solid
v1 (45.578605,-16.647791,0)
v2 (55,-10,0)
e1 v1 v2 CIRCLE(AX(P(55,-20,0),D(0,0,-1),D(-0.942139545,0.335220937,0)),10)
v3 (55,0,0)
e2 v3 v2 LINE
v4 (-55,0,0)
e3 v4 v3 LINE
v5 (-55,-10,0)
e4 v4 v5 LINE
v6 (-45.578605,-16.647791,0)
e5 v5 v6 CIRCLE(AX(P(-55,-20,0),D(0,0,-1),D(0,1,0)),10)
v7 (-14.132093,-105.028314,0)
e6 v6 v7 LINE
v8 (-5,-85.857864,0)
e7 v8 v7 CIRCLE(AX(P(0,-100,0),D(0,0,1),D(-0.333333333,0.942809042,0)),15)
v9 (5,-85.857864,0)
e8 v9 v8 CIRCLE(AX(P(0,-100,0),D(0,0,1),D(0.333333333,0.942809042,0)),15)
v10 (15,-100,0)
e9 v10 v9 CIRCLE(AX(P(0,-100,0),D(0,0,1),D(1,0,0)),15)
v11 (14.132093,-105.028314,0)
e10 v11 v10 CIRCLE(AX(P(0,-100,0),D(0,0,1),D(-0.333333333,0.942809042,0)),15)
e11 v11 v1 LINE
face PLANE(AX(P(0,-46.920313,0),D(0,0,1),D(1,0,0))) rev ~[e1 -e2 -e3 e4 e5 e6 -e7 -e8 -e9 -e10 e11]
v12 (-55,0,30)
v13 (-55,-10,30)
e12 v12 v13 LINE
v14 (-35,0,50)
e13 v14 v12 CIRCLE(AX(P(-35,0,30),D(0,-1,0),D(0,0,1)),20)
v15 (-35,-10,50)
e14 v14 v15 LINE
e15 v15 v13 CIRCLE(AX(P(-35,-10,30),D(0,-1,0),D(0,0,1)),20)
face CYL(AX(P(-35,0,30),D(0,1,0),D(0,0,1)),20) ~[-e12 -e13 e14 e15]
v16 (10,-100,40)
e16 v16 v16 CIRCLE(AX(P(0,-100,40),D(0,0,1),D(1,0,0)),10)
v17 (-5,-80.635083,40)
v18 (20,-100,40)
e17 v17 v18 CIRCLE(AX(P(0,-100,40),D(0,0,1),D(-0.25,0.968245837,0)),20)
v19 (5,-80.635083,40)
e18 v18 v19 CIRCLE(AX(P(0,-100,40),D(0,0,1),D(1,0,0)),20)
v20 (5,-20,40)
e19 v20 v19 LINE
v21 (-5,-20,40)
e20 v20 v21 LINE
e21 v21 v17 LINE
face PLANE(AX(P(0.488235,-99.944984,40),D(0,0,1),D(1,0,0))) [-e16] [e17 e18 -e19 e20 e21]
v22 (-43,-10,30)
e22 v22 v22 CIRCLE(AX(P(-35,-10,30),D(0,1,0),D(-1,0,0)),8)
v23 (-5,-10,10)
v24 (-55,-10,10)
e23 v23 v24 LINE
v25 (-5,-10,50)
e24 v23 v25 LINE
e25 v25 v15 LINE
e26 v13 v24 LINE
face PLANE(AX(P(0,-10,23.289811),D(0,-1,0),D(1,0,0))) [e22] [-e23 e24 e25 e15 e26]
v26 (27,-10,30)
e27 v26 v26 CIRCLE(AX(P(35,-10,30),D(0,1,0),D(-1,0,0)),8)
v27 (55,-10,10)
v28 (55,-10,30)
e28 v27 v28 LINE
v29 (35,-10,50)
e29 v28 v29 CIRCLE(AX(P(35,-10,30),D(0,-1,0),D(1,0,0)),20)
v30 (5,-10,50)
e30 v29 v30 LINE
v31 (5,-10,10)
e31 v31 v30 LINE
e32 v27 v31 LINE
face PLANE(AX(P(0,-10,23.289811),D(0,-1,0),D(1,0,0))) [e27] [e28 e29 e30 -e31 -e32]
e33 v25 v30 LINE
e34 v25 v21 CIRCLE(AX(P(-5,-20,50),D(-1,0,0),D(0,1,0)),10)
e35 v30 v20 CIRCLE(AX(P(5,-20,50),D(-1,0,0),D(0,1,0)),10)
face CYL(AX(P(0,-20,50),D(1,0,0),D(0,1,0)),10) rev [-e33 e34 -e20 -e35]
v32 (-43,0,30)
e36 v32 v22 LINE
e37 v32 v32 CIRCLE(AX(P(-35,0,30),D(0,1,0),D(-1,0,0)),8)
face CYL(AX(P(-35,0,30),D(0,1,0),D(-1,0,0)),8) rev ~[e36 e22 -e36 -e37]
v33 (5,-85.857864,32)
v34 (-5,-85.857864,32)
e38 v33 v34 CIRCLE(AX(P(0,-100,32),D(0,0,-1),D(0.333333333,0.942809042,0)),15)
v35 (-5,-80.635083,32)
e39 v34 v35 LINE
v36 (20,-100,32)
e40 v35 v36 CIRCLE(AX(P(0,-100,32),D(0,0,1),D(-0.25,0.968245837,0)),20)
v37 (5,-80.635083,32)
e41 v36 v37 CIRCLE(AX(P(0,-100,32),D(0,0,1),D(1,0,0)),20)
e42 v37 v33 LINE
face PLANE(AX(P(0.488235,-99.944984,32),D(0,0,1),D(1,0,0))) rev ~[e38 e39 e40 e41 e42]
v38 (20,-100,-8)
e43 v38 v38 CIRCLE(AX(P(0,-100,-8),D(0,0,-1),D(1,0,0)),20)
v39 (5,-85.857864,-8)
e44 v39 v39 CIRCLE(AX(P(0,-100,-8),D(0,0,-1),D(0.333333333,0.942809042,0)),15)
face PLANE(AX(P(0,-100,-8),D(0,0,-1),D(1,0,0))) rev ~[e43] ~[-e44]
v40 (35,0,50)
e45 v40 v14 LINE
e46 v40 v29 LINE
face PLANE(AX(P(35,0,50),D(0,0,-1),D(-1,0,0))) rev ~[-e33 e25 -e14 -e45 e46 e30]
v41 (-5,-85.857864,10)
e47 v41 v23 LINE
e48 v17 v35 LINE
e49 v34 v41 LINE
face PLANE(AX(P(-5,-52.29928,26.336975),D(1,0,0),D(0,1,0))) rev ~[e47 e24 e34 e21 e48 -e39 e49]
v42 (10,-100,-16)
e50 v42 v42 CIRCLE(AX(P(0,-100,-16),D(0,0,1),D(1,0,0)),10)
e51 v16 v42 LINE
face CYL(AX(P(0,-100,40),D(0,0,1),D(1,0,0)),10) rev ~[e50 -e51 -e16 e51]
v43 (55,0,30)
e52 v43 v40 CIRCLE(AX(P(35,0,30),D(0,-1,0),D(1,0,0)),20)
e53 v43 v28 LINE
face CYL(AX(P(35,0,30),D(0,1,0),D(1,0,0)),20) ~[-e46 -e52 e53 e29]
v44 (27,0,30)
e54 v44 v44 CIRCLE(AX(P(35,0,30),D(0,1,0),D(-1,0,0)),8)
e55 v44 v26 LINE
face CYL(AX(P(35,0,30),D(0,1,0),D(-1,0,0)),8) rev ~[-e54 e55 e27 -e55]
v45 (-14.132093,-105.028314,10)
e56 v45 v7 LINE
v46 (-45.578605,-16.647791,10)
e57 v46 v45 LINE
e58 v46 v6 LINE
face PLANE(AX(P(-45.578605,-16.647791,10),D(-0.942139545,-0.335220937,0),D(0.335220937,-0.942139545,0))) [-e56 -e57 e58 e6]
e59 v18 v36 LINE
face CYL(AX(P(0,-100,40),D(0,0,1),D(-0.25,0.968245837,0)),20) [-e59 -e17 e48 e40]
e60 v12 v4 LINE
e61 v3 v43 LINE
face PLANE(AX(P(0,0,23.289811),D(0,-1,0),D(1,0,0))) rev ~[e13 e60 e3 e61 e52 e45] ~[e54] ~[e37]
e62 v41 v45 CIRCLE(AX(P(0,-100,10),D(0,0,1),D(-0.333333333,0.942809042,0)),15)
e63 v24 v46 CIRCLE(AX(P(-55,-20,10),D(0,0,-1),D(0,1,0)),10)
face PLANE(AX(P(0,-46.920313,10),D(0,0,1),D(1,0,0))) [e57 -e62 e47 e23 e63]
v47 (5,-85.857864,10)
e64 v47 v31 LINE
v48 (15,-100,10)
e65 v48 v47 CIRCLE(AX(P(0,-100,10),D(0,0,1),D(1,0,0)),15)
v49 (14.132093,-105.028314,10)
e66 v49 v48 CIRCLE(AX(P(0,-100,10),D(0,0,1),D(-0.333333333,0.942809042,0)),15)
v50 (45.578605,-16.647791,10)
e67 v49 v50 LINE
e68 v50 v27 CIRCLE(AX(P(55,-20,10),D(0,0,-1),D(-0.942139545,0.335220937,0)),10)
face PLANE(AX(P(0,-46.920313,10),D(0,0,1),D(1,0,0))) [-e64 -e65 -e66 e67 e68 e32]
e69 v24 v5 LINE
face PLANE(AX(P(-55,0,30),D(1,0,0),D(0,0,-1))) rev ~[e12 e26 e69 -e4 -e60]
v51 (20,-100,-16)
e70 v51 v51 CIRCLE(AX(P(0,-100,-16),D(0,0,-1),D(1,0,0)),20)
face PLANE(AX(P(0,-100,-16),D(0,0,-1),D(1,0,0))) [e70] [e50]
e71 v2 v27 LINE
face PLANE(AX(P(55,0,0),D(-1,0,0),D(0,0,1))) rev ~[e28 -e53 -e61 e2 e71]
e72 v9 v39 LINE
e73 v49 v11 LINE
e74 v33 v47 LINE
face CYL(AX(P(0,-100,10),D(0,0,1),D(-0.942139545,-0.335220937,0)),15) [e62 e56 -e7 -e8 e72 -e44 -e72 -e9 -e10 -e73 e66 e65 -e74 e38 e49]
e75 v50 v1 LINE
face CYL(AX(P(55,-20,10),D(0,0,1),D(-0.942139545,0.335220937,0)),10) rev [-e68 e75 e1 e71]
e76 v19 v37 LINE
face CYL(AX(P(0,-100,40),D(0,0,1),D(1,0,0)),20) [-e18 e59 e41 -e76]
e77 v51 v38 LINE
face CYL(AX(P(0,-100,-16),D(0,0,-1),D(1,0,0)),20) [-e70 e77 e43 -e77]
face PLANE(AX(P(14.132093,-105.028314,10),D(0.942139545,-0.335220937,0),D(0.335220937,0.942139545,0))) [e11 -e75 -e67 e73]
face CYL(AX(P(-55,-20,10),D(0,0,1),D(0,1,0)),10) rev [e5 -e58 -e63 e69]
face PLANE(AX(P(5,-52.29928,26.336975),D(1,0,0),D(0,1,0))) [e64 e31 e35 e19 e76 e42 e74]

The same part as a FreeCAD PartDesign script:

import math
import FreeCAD as App
import Part
import Sketcher

doc = App.newDocument("Part")
body = doc.addObject("PartDesign::Body", "Body")

sketch1 = body.newObject("Sketcher::SketchObject", "Sketch")
sketch1.AttachmentSupport = (doc.getObject("XZ_Plane"), [""])
sketch1.MapMode = "FlatFace"
sketch1.addGeometry([
    Part.LineSegment(App.Vector(-55, 30, 0), App.Vector(-55, 0, 0)),
    Part.LineSegment(App.Vector(-55, 0, 0), App.Vector(55, 0, 0)),
    Part.LineSegment(App.Vector(55, 0, 0), App.Vector(55, 30, 0)),
    Part.ArcOfCircle(Part.Circle(App.Vector(35, 30, 0), App.Vector(0, 0, 1), 20), math.radians(0), math.radians(90)),
    Part.LineSegment(App.Vector(35, 50, 0), App.Vector(-35, 50, 0)),
    Part.ArcOfCircle(Part.Circle(App.Vector(-35, 30, 0), App.Vector(0, 0, 1), 20), math.radians(90), math.radians(180)),
], False)
sketch1.addConstraint([
    Sketcher.Constraint("Coincident", 0, 2, 1, 1),
    Sketcher.Constraint("Coincident", 1, 2, 2, 1),
    Sketcher.Constraint("Tangent", 2, 2, 3, 1),
    Sketcher.Constraint("Tangent", 3, 2, 4, 1),
    Sketcher.Constraint("Tangent", 4, 2, 5, 1),
    Sketcher.Constraint("Tangent", 5, 2, 0, 1),
    Sketcher.Constraint("Vertical", 0),
    Sketcher.Constraint("Horizontal", 1),
    Sketcher.Constraint("Vertical", 2),
    Sketcher.Constraint("Horizontal", 4),
    Sketcher.Constraint("Equal", 3, 5),
    Sketcher.Constraint("Symmetric", 0, 2, 1, 2, -1, 1),
    Sketcher.Constraint("Radius", 3, 20.0),
    Sketcher.Constraint("DistanceX", 1, 1, 1, 2, 110.0),
    Sketcher.Constraint("DistanceY", 0, 2, 0, 1, 30.0),
])
pad1 = body.newObject("PartDesign::Pad", "Pad")
pad1.Profile = sketch1
pad1.Length = 10

sketch2 = body.newObject("Sketcher::SketchObject", "Sketch001")
sketch2.AttachmentSupport = (doc.getObject("XY_Plane"), [""])
sketch2.MapMode = "FlatFace"
sketch2.AttachmentOffset = App.Placement(App.Vector(0, 0, 10), App.Rotation())
sketch2.addGeometry([
    Part.ArcOfCircle(Part.Circle(App.Vector(0, -100, 0), App.Vector(0, 0, 1), 15), math.radians(-160), math.radians(-20)),
    Part.LineSegment(App.Vector(14, -105, 0), App.Vector(46, -17, 0)),
    Part.ArcOfCircle(Part.Circle(App.Vector(55, -20, 0), App.Vector(0, 0, 1), 10), math.radians(90), math.radians(160)),
    Part.LineSegment(App.Vector(55, -10, 0), App.Vector(-55, -10, 0)),
    Part.ArcOfCircle(Part.Circle(App.Vector(-55, -20, 0), App.Vector(0, 0, 1), 10), math.radians(20), math.radians(90)),
    Part.LineSegment(App.Vector(-46, -17, 0), App.Vector(-14, -105, 0)),
], False)
sketch2.addConstraint([
    Sketcher.Constraint("Tangent", 0, 2, 1, 1),
    Sketcher.Constraint("Tangent", 1, 2, 2, 2),
    Sketcher.Constraint("Tangent", 2, 1, 3, 1),
    Sketcher.Constraint("Tangent", 3, 2, 4, 2),
    Sketcher.Constraint("Tangent", 4, 1, 5, 1),
    Sketcher.Constraint("Tangent", 5, 2, 0, 1),
    Sketcher.Constraint("Horizontal", 3),
    Sketcher.Constraint("Equal", 2, 4),
    Sketcher.Constraint("Symmetric", 1, 2, 4, 1, -2),
    Sketcher.Constraint("Radius", 0, 15.0),
    Sketcher.Constraint("Radius", 2, 10.0),
    Sketcher.Constraint("DistanceX", 3, 2, 3, 1, 110.0),
    Sketcher.Constraint("DistanceY", 0, 3, -1, 1, 100.0),
    Sketcher.Constraint("DistanceY", 2, 3, -1, 1, 20.0),
])
pad2 = body.newObject("PartDesign::Pad", "Pad001")
pad2.Profile = sketch2
pad2.Length = 10
pad2.Reversed = True

sketch3 = body.newObject("Sketcher::SketchObject", "Sketch002")
sketch3.AttachmentSupport = (doc.getObject("YZ_Plane"), [""])
sketch3.MapMode = "FlatFace"
sketch3.addGeometry([
    Part.LineSegment(App.Vector(-100, 10, 0), App.Vector(-10, 10, 0)),
    Part.LineSegment(App.Vector(-10, 10, 0), App.Vector(-10, 50, 0)),
    Part.ArcOfCircle(Part.Circle(App.Vector(-20, 50, 0), App.Vector(0, 0, 1), 10), math.radians(-90), math.radians(0)),
    Part.LineSegment(App.Vector(-20, 40, 0), App.Vector(-100, 40, 0)),
    Part.LineSegment(App.Vector(-100, 40, 0), App.Vector(-100, 10, 0)),
], False)
sketch3.addConstraint([
    Sketcher.Constraint("Coincident", 0, 2, 1, 1),
    Sketcher.Constraint("Tangent", 1, 2, 2, 2),
    Sketcher.Constraint("Tangent", 2, 1, 3, 1),
    Sketcher.Constraint("Coincident", 3, 2, 4, 1),
    Sketcher.Constraint("Coincident", 4, 2, 0, 1),
    Sketcher.Constraint("Horizontal", 0),
    Sketcher.Constraint("Vertical", 1),
    Sketcher.Constraint("Horizontal", 3),
    Sketcher.Constraint("Vertical", 4),
    Sketcher.Constraint("Radius", 2, 10.0),
    Sketcher.Constraint("DistanceX", 0, 1, 0, 2, 90.0),
    Sketcher.Constraint("DistanceY", 1, 1, 1, 2, 40.0),
    Sketcher.Constraint("DistanceX", 2, 3, -1, 1, 20.0),
    Sketcher.Constraint("DistanceY", -1, 1, 2, 3, 50.0),
])
pad3 = body.newObject("PartDesign::Pad", "Pad002")
pad3.Profile = sketch3
pad3.Length = 10
pad3.Midplane = True

sketch4 = body.newObject("Sketcher::SketchObject", "Sketch003")
sketch4.AttachmentSupport = (doc.getObject("XY_Plane"), [""])
sketch4.MapMode = "FlatFace"
sketch4.AttachmentOffset = App.Placement(App.Vector(0, 0, 40), App.Rotation())
sketch4.addGeometry([
    Part.ArcOfCircle(Part.Circle(App.Vector(0, -100, 0), App.Vector(0, 0, 1), 15), math.radians(71), math.radians(109)),
    Part.ArcOfCircle(Part.Circle(App.Vector(0, -100, 0), App.Vector(0, 0, 1), 15), math.radians(109), math.radians(360)),
    Part.ArcOfCircle(Part.Circle(App.Vector(0, -100, 0), App.Vector(0, 0, 1), 15), math.radians(0), math.radians(71)),
], False)
sketch4.addConstraint([
    Sketcher.Constraint("Tangent", 0, 2, 1, 1),
    Sketcher.Constraint("Tangent", 1, 2, 2, 1),
    Sketcher.Constraint("Tangent", 2, 2, 0, 1),
    Sketcher.Constraint("Symmetric", 0, 2, 2, 2, -2),
    Sketcher.Constraint("Horizontal", 2, 3, 1, 2),
    Sketcher.Constraint("Radius", 0, 15.0),
    Sketcher.Constraint("DistanceY", 0, 3, -1, 1, 100.0),
    Sketcher.Constraint("DistanceX", 0, 2, -1, 1, 5.0),
])
pad4 = body.newObject("PartDesign::Pad", "Pad003")
pad4.Profile = sketch4
pad4.Length = 56
pad4.Reversed = True

sketch5 = body.newObject("Sketcher::SketchObject", "Sketch004")
sketch5.AttachmentSupport = (doc.getObject("XY_Plane"), [""])
sketch5.MapMode = "FlatFace"
sketch5.AttachmentOffset = App.Placement(App.Vector(0, 0, 40), App.Rotation())
sketch5.addGeometry([
    Part.ArcOfCircle(Part.Circle(App.Vector(0, -100, 0), App.Vector(0, 0, 1), 20), math.radians(104), math.radians(360)),
    Part.ArcOfCircle(Part.Circle(App.Vector(0, -100, 0), App.Vector(0, 0, 1), 20), math.radians(0), math.radians(76)),
    Part.LineSegment(App.Vector(5, -81, 0), App.Vector(5, -86, 0)),
    Part.ArcOfCircle(Part.Circle(App.Vector(0, -100, 0), App.Vector(0, 0, 1), 15), math.radians(109), math.radians(431)),
    Part.LineSegment(App.Vector(-5, -86, 0), App.Vector(-5, -81, 0)),
], False)
sketch5.addConstraint([
    Sketcher.Constraint("Tangent", 0, 2, 1, 1),
    Sketcher.Constraint("Coincident", 1, 2, 2, 1),
    Sketcher.Constraint("Coincident", 2, 2, 3, 2),
    Sketcher.Constraint("Coincident", 3, 1, 4, 1),
    Sketcher.Constraint("Coincident", 4, 2, 0, 1),
    Sketcher.Constraint("Vertical", 2),
    Sketcher.Constraint("Vertical", 4),
    Sketcher.Constraint("Coincident", 3, 3, 0, 3),
    Sketcher.Constraint("Equal", 0, 1),
    Sketcher.Constraint("Symmetric", 2, 2, 3, 1, -2),
    Sketcher.Constraint("Horizontal", 3, 3, 0, 2),
    Sketcher.Constraint("Radius", 0, 20.0),
    Sketcher.Constraint("Radius", 3, 15.0),
    Sketcher.Constraint("DistanceY", 0, 3, -1, 1, 100.0),
    Sketcher.Constraint("DistanceX", -1, 1, 1, 2, 5.0),
])
pad5 = body.newObject("PartDesign::Pad", "Pad004")
pad5.Profile = sketch5
pad5.Length = 8
pad5.Reversed = True

sketch6 = body.newObject("Sketcher::SketchObject", "Sketch005")
sketch6.AttachmentSupport = (doc.getObject("XY_Plane"), [""])
sketch6.MapMode = "FlatFace"
sketch6.AttachmentOffset = App.Placement(App.Vector(0, 0, -16), App.Rotation())
sketch6.addGeometry([
    Part.Circle(App.Vector(0, -100, 0), App.Vector(0, 0, 1), 20),
    Part.Circle(App.Vector(0, -100, 0), App.Vector(0, 0, 1), 15),
], False)
sketch6.addConstraint([
    Sketcher.Constraint("Coincident", 1, 3, 0, 3),
    Sketcher.Constraint("PointOnObject", 0, 3, -2),
    Sketcher.Constraint("Diameter", 0, 40.0),
    Sketcher.Constraint("Diameter", 1, 30.0),
    Sketcher.Constraint("DistanceY", 0, 3, -1, 1, 100.0),
])
pad6 = body.newObject("PartDesign::Pad", "Pad005")
pad6.Profile = sketch6
pad6.Length = 8

sketch7 = body.newObject("Sketcher::SketchObject", "Sketch006")
sketch7.AttachmentSupport = (doc.getObject("XY_Plane"), [""])
sketch7.MapMode = "FlatFace"
sketch7.AttachmentOffset = App.Placement(App.Vector(0, 0, 40), App.Rotation())
sketch7.addGeometry(Part.Circle(App.Vector(0, -100, 0), App.Vector(0, 0, 1), 10), False)
sketch7.addConstraint([
    Sketcher.Constraint("PointOnObject", 0, 3, -2),
    Sketcher.Constraint("Diameter", 0, 20.0),
    Sketcher.Constraint("DistanceY", 0, 3, -1, 1, 100.0),
])
pocket1 = body.newObject("PartDesign::Pocket", "Pocket")
pocket1.Profile = sketch7
pocket1.Type = "ThroughAll"

sketch8 = body.newObject("Sketcher::SketchObject", "Sketch007")
sketch8.AttachmentSupport = (doc.getObject("XZ_Plane"), [""])
sketch8.MapMode = "FlatFace"
sketch8.addGeometry([
    Part.Circle(App.Vector(35, 30, 0), App.Vector(0, 0, 1), 8),
    Part.Circle(App.Vector(-35, 30, 0), App.Vector(0, 0, 1), 8),
], False)
sketch8.addConstraint([
    Sketcher.Constraint("Equal", 0, 1),
    Sketcher.Constraint("Symmetric", 0, 3, 1, 3, -2),
    Sketcher.Constraint("Diameter", 0, 16.0),
    Sketcher.Constraint("DistanceX", -1, 1, 0, 3, 35.0),
    Sketcher.Constraint("DistanceY", -1, 1, 0, 3, 30.0),
])
pocket2 = body.newObject("PartDesign::Pocket", "Pocket001")
pocket2.Profile = sketch8
pocket2.Type = "ThroughAll"
pocket2.Reversed = True

doc.recompute()
